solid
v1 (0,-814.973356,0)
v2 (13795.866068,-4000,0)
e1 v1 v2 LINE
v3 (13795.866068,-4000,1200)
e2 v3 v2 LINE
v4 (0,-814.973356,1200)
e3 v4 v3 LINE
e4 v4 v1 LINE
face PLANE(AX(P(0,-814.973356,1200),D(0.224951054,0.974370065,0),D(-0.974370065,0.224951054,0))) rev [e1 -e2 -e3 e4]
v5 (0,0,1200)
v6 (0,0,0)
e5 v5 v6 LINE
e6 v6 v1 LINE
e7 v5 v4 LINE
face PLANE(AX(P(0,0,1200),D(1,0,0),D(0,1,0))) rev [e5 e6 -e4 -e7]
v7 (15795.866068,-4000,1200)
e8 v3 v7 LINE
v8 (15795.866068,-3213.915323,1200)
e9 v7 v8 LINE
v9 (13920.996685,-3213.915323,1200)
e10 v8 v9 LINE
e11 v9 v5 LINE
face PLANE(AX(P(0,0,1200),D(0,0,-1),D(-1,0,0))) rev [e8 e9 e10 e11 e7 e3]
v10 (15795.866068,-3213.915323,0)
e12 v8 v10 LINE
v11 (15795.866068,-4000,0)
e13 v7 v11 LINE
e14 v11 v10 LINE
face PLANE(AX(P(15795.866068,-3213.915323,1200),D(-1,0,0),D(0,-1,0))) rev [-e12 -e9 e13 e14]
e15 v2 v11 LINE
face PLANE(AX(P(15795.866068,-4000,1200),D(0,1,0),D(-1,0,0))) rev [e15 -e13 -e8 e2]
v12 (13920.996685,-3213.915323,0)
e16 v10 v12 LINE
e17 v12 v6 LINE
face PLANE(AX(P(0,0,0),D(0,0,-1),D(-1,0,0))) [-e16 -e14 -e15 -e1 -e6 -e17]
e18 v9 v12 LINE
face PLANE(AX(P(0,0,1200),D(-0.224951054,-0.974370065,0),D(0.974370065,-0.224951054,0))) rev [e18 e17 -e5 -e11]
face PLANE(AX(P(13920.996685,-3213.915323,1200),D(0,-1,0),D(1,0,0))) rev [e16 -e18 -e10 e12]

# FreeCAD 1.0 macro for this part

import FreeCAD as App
import Part
import Sketcher
Q = App.Units.Quantity

doc = App.newDocument("Part")
body = doc.addObject("PartDesign::Body", "Body")

sketch1 = body.newObject("Sketcher::SketchObject", "Sketch")
sketch1.AttachmentSupport = (doc.getObject("XY_Plane"), [""])
sketch1.MapMode = "FlatFace"
sketch1.addGeometry([
    Part.LineSegment(App.Vector(13921, -3214, 0), App.Vector(0, 0, 0)),
    Part.LineSegment(App.Vector(0, 0, 0), App.Vector(0, -815, 0)),
    Part.LineSegment(App.Vector(0, -815, 0), App.Vector(13796, -4000, 0)),
    Part.LineSegment(App.Vector(13796, -4000, 0), App.Vector(15796, -4000, 0)),
    Part.LineSegment(App.Vector(15796, -4000, 0), App.Vector(15796, -3214, 0)),
    Part.LineSegment(App.Vector(15796, -3214, 0), App.Vector(13921, -3214, 0)),
], False)
sketch1.addConstraint([
    Sketcher.Constraint("Coincident", 0, 2, 1, 1),
    Sketcher.Constraint("Coincident", 1, 2, 2, 1),
    Sketcher.Constraint("Coincident", 2, 2, 3, 1),
    Sketcher.Constraint("Coincident", 3, 2, 4, 1),
    Sketcher.Constraint("Coincident", 4, 2, 5, 1),
    Sketcher.Constraint("Coincident", 5, 2, 0, 1),
    Sketcher.Constraint("Vertical", 1),
    Sketcher.Constraint("Horizontal", 3),
    Sketcher.Constraint("Vertical", 4),
    Sketcher.Constraint("Horizontal", 5),
    Sketcher.Constraint("Coincident", 0, 2, -1, 1),
    Sketcher.Constraint("Parallel", 0, 2),
    Sketcher.Constraint("DistanceX", 3, 1, 3, 2, 2000.0),
    Sketcher.Constraint("Angle", 0, Q("167 deg")),
    Sketcher.Constraint("DistanceY", 2, 2, -1, 1, 4000.0),
    Sketcher.Constraint("DistanceX", 5, 2, 5, 1, 1874.869382),
    Sketcher.Constraint("DistanceY", 1, 2, 1, 1, 814.973356),
])
pad1 = body.newObject("PartDesign::Pad", "Pad")
pad1.Profile = sketch1
pad1.Length = 1200

doc.recompute()
